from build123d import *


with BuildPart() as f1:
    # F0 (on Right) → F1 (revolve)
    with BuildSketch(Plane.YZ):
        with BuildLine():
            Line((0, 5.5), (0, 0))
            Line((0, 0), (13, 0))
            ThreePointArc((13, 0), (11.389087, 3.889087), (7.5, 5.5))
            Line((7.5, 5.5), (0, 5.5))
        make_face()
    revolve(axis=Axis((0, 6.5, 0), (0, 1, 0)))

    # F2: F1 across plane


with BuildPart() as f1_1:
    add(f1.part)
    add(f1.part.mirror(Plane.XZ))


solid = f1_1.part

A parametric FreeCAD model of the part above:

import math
import FreeCAD as App
import Part
import Sketcher
from FreeCAD import Vector

doc = App.newDocument("Part")
params = doc.addObject("Spreadsheet::Sheet", "Params")
for row, (alias, value) in enumerate([
    ("sketch1_radius", "5.500001 mm"),
    ("sketch1_width", "13 mm"),
    ("revolution_angle", "360 deg"),
], start=1):
    params.set(f"A{row}", alias)
    params.set(f"B{row}", "=" + value)
    params.setAlias(f"B{row}", alias)

body = doc.addObject("PartDesign::Body", "Body")

# Sketch on YZ plane
sketch1 = body.newObject("Sketcher::SketchObject", "Sketch")
sketch1.AttachmentSupport = (doc.getObject("YZ_Plane"), [""])
sketch1.MapMode = "FlatFace"
sketch1.addGeometry([
    Part.LineSegment(Vector(0, 6, 0), Vector(0, 0, 0)),
    Part.LineSegment(Vector(0, 0, 0), Vector(13, 0, 0)),
    Part.ArcOfCircle(Part.Circle(Vector(7, 0, 0), Vector(0, 0, 1), 6), math.radians(0), math.radians(90)),
    Part.LineSegment(Vector(8, 6, 0), Vector(0, 6, 0)),
], False)
sketch1.addConstraint([
    Sketcher.Constraint("Coincident", 0, 2, 1, 1),
    Sketcher.Constraint("Coincident", 1, 2, 2, 1),
    Sketcher.Constraint("Tangent", 2, 2, 3, 1),
    Sketcher.Constraint("Coincident", 3, 2, 0, 1),
    Sketcher.Constraint("Vertical", 0),
    Sketcher.Constraint("Horizontal", 1),
    Sketcher.Constraint("Horizontal", 3),
    Sketcher.Constraint("Coincident", 0, 2, -1, 1),
    Sketcher.Constraint("PointOnObject", 2, 3, -1),
    Sketcher.Constraint("Radius", 2, 5.500001),
    Sketcher.Constraint("DistanceX", 1, 1, 1, 2, 13.0),
])
sketch1.setExpression("Constraints[9]", "Params.sketch1_radius")
sketch1.setExpression("Constraints[10]", "Params.sketch1_width")
revolution = body.newObject("PartDesign::Revolution", "Revolution")
revolution.Profile = sketch1
revolution.ReferenceAxis = (sketch1, ["H_Axis"])
revolution.setExpression("Angle", "Params.revolution_angle")
body2 = doc.addObject("PartDesign::Body", "Body001")
doc.recompute()

body2.BaseFeature = body
doc.recompute()

mirroring = doc.addObject("Part::Mirroring", "Mirroring")
mirroring.Source = body
mirroring.Base = Vector(0, 0, 0)
mirroring.Normal = Vector(0, -1, 0)
body3 = doc.addObject("PartDesign::Body", "Body002")
body3.BaseFeature = mirroring
boolean = body2.newObject("PartDesign::Boolean", "Boolean")
boolean.Type = "Fuse"
boolean.addObjects([body3])
doc.recompute()
mirroring.Visibility = False

doc.recompute()
